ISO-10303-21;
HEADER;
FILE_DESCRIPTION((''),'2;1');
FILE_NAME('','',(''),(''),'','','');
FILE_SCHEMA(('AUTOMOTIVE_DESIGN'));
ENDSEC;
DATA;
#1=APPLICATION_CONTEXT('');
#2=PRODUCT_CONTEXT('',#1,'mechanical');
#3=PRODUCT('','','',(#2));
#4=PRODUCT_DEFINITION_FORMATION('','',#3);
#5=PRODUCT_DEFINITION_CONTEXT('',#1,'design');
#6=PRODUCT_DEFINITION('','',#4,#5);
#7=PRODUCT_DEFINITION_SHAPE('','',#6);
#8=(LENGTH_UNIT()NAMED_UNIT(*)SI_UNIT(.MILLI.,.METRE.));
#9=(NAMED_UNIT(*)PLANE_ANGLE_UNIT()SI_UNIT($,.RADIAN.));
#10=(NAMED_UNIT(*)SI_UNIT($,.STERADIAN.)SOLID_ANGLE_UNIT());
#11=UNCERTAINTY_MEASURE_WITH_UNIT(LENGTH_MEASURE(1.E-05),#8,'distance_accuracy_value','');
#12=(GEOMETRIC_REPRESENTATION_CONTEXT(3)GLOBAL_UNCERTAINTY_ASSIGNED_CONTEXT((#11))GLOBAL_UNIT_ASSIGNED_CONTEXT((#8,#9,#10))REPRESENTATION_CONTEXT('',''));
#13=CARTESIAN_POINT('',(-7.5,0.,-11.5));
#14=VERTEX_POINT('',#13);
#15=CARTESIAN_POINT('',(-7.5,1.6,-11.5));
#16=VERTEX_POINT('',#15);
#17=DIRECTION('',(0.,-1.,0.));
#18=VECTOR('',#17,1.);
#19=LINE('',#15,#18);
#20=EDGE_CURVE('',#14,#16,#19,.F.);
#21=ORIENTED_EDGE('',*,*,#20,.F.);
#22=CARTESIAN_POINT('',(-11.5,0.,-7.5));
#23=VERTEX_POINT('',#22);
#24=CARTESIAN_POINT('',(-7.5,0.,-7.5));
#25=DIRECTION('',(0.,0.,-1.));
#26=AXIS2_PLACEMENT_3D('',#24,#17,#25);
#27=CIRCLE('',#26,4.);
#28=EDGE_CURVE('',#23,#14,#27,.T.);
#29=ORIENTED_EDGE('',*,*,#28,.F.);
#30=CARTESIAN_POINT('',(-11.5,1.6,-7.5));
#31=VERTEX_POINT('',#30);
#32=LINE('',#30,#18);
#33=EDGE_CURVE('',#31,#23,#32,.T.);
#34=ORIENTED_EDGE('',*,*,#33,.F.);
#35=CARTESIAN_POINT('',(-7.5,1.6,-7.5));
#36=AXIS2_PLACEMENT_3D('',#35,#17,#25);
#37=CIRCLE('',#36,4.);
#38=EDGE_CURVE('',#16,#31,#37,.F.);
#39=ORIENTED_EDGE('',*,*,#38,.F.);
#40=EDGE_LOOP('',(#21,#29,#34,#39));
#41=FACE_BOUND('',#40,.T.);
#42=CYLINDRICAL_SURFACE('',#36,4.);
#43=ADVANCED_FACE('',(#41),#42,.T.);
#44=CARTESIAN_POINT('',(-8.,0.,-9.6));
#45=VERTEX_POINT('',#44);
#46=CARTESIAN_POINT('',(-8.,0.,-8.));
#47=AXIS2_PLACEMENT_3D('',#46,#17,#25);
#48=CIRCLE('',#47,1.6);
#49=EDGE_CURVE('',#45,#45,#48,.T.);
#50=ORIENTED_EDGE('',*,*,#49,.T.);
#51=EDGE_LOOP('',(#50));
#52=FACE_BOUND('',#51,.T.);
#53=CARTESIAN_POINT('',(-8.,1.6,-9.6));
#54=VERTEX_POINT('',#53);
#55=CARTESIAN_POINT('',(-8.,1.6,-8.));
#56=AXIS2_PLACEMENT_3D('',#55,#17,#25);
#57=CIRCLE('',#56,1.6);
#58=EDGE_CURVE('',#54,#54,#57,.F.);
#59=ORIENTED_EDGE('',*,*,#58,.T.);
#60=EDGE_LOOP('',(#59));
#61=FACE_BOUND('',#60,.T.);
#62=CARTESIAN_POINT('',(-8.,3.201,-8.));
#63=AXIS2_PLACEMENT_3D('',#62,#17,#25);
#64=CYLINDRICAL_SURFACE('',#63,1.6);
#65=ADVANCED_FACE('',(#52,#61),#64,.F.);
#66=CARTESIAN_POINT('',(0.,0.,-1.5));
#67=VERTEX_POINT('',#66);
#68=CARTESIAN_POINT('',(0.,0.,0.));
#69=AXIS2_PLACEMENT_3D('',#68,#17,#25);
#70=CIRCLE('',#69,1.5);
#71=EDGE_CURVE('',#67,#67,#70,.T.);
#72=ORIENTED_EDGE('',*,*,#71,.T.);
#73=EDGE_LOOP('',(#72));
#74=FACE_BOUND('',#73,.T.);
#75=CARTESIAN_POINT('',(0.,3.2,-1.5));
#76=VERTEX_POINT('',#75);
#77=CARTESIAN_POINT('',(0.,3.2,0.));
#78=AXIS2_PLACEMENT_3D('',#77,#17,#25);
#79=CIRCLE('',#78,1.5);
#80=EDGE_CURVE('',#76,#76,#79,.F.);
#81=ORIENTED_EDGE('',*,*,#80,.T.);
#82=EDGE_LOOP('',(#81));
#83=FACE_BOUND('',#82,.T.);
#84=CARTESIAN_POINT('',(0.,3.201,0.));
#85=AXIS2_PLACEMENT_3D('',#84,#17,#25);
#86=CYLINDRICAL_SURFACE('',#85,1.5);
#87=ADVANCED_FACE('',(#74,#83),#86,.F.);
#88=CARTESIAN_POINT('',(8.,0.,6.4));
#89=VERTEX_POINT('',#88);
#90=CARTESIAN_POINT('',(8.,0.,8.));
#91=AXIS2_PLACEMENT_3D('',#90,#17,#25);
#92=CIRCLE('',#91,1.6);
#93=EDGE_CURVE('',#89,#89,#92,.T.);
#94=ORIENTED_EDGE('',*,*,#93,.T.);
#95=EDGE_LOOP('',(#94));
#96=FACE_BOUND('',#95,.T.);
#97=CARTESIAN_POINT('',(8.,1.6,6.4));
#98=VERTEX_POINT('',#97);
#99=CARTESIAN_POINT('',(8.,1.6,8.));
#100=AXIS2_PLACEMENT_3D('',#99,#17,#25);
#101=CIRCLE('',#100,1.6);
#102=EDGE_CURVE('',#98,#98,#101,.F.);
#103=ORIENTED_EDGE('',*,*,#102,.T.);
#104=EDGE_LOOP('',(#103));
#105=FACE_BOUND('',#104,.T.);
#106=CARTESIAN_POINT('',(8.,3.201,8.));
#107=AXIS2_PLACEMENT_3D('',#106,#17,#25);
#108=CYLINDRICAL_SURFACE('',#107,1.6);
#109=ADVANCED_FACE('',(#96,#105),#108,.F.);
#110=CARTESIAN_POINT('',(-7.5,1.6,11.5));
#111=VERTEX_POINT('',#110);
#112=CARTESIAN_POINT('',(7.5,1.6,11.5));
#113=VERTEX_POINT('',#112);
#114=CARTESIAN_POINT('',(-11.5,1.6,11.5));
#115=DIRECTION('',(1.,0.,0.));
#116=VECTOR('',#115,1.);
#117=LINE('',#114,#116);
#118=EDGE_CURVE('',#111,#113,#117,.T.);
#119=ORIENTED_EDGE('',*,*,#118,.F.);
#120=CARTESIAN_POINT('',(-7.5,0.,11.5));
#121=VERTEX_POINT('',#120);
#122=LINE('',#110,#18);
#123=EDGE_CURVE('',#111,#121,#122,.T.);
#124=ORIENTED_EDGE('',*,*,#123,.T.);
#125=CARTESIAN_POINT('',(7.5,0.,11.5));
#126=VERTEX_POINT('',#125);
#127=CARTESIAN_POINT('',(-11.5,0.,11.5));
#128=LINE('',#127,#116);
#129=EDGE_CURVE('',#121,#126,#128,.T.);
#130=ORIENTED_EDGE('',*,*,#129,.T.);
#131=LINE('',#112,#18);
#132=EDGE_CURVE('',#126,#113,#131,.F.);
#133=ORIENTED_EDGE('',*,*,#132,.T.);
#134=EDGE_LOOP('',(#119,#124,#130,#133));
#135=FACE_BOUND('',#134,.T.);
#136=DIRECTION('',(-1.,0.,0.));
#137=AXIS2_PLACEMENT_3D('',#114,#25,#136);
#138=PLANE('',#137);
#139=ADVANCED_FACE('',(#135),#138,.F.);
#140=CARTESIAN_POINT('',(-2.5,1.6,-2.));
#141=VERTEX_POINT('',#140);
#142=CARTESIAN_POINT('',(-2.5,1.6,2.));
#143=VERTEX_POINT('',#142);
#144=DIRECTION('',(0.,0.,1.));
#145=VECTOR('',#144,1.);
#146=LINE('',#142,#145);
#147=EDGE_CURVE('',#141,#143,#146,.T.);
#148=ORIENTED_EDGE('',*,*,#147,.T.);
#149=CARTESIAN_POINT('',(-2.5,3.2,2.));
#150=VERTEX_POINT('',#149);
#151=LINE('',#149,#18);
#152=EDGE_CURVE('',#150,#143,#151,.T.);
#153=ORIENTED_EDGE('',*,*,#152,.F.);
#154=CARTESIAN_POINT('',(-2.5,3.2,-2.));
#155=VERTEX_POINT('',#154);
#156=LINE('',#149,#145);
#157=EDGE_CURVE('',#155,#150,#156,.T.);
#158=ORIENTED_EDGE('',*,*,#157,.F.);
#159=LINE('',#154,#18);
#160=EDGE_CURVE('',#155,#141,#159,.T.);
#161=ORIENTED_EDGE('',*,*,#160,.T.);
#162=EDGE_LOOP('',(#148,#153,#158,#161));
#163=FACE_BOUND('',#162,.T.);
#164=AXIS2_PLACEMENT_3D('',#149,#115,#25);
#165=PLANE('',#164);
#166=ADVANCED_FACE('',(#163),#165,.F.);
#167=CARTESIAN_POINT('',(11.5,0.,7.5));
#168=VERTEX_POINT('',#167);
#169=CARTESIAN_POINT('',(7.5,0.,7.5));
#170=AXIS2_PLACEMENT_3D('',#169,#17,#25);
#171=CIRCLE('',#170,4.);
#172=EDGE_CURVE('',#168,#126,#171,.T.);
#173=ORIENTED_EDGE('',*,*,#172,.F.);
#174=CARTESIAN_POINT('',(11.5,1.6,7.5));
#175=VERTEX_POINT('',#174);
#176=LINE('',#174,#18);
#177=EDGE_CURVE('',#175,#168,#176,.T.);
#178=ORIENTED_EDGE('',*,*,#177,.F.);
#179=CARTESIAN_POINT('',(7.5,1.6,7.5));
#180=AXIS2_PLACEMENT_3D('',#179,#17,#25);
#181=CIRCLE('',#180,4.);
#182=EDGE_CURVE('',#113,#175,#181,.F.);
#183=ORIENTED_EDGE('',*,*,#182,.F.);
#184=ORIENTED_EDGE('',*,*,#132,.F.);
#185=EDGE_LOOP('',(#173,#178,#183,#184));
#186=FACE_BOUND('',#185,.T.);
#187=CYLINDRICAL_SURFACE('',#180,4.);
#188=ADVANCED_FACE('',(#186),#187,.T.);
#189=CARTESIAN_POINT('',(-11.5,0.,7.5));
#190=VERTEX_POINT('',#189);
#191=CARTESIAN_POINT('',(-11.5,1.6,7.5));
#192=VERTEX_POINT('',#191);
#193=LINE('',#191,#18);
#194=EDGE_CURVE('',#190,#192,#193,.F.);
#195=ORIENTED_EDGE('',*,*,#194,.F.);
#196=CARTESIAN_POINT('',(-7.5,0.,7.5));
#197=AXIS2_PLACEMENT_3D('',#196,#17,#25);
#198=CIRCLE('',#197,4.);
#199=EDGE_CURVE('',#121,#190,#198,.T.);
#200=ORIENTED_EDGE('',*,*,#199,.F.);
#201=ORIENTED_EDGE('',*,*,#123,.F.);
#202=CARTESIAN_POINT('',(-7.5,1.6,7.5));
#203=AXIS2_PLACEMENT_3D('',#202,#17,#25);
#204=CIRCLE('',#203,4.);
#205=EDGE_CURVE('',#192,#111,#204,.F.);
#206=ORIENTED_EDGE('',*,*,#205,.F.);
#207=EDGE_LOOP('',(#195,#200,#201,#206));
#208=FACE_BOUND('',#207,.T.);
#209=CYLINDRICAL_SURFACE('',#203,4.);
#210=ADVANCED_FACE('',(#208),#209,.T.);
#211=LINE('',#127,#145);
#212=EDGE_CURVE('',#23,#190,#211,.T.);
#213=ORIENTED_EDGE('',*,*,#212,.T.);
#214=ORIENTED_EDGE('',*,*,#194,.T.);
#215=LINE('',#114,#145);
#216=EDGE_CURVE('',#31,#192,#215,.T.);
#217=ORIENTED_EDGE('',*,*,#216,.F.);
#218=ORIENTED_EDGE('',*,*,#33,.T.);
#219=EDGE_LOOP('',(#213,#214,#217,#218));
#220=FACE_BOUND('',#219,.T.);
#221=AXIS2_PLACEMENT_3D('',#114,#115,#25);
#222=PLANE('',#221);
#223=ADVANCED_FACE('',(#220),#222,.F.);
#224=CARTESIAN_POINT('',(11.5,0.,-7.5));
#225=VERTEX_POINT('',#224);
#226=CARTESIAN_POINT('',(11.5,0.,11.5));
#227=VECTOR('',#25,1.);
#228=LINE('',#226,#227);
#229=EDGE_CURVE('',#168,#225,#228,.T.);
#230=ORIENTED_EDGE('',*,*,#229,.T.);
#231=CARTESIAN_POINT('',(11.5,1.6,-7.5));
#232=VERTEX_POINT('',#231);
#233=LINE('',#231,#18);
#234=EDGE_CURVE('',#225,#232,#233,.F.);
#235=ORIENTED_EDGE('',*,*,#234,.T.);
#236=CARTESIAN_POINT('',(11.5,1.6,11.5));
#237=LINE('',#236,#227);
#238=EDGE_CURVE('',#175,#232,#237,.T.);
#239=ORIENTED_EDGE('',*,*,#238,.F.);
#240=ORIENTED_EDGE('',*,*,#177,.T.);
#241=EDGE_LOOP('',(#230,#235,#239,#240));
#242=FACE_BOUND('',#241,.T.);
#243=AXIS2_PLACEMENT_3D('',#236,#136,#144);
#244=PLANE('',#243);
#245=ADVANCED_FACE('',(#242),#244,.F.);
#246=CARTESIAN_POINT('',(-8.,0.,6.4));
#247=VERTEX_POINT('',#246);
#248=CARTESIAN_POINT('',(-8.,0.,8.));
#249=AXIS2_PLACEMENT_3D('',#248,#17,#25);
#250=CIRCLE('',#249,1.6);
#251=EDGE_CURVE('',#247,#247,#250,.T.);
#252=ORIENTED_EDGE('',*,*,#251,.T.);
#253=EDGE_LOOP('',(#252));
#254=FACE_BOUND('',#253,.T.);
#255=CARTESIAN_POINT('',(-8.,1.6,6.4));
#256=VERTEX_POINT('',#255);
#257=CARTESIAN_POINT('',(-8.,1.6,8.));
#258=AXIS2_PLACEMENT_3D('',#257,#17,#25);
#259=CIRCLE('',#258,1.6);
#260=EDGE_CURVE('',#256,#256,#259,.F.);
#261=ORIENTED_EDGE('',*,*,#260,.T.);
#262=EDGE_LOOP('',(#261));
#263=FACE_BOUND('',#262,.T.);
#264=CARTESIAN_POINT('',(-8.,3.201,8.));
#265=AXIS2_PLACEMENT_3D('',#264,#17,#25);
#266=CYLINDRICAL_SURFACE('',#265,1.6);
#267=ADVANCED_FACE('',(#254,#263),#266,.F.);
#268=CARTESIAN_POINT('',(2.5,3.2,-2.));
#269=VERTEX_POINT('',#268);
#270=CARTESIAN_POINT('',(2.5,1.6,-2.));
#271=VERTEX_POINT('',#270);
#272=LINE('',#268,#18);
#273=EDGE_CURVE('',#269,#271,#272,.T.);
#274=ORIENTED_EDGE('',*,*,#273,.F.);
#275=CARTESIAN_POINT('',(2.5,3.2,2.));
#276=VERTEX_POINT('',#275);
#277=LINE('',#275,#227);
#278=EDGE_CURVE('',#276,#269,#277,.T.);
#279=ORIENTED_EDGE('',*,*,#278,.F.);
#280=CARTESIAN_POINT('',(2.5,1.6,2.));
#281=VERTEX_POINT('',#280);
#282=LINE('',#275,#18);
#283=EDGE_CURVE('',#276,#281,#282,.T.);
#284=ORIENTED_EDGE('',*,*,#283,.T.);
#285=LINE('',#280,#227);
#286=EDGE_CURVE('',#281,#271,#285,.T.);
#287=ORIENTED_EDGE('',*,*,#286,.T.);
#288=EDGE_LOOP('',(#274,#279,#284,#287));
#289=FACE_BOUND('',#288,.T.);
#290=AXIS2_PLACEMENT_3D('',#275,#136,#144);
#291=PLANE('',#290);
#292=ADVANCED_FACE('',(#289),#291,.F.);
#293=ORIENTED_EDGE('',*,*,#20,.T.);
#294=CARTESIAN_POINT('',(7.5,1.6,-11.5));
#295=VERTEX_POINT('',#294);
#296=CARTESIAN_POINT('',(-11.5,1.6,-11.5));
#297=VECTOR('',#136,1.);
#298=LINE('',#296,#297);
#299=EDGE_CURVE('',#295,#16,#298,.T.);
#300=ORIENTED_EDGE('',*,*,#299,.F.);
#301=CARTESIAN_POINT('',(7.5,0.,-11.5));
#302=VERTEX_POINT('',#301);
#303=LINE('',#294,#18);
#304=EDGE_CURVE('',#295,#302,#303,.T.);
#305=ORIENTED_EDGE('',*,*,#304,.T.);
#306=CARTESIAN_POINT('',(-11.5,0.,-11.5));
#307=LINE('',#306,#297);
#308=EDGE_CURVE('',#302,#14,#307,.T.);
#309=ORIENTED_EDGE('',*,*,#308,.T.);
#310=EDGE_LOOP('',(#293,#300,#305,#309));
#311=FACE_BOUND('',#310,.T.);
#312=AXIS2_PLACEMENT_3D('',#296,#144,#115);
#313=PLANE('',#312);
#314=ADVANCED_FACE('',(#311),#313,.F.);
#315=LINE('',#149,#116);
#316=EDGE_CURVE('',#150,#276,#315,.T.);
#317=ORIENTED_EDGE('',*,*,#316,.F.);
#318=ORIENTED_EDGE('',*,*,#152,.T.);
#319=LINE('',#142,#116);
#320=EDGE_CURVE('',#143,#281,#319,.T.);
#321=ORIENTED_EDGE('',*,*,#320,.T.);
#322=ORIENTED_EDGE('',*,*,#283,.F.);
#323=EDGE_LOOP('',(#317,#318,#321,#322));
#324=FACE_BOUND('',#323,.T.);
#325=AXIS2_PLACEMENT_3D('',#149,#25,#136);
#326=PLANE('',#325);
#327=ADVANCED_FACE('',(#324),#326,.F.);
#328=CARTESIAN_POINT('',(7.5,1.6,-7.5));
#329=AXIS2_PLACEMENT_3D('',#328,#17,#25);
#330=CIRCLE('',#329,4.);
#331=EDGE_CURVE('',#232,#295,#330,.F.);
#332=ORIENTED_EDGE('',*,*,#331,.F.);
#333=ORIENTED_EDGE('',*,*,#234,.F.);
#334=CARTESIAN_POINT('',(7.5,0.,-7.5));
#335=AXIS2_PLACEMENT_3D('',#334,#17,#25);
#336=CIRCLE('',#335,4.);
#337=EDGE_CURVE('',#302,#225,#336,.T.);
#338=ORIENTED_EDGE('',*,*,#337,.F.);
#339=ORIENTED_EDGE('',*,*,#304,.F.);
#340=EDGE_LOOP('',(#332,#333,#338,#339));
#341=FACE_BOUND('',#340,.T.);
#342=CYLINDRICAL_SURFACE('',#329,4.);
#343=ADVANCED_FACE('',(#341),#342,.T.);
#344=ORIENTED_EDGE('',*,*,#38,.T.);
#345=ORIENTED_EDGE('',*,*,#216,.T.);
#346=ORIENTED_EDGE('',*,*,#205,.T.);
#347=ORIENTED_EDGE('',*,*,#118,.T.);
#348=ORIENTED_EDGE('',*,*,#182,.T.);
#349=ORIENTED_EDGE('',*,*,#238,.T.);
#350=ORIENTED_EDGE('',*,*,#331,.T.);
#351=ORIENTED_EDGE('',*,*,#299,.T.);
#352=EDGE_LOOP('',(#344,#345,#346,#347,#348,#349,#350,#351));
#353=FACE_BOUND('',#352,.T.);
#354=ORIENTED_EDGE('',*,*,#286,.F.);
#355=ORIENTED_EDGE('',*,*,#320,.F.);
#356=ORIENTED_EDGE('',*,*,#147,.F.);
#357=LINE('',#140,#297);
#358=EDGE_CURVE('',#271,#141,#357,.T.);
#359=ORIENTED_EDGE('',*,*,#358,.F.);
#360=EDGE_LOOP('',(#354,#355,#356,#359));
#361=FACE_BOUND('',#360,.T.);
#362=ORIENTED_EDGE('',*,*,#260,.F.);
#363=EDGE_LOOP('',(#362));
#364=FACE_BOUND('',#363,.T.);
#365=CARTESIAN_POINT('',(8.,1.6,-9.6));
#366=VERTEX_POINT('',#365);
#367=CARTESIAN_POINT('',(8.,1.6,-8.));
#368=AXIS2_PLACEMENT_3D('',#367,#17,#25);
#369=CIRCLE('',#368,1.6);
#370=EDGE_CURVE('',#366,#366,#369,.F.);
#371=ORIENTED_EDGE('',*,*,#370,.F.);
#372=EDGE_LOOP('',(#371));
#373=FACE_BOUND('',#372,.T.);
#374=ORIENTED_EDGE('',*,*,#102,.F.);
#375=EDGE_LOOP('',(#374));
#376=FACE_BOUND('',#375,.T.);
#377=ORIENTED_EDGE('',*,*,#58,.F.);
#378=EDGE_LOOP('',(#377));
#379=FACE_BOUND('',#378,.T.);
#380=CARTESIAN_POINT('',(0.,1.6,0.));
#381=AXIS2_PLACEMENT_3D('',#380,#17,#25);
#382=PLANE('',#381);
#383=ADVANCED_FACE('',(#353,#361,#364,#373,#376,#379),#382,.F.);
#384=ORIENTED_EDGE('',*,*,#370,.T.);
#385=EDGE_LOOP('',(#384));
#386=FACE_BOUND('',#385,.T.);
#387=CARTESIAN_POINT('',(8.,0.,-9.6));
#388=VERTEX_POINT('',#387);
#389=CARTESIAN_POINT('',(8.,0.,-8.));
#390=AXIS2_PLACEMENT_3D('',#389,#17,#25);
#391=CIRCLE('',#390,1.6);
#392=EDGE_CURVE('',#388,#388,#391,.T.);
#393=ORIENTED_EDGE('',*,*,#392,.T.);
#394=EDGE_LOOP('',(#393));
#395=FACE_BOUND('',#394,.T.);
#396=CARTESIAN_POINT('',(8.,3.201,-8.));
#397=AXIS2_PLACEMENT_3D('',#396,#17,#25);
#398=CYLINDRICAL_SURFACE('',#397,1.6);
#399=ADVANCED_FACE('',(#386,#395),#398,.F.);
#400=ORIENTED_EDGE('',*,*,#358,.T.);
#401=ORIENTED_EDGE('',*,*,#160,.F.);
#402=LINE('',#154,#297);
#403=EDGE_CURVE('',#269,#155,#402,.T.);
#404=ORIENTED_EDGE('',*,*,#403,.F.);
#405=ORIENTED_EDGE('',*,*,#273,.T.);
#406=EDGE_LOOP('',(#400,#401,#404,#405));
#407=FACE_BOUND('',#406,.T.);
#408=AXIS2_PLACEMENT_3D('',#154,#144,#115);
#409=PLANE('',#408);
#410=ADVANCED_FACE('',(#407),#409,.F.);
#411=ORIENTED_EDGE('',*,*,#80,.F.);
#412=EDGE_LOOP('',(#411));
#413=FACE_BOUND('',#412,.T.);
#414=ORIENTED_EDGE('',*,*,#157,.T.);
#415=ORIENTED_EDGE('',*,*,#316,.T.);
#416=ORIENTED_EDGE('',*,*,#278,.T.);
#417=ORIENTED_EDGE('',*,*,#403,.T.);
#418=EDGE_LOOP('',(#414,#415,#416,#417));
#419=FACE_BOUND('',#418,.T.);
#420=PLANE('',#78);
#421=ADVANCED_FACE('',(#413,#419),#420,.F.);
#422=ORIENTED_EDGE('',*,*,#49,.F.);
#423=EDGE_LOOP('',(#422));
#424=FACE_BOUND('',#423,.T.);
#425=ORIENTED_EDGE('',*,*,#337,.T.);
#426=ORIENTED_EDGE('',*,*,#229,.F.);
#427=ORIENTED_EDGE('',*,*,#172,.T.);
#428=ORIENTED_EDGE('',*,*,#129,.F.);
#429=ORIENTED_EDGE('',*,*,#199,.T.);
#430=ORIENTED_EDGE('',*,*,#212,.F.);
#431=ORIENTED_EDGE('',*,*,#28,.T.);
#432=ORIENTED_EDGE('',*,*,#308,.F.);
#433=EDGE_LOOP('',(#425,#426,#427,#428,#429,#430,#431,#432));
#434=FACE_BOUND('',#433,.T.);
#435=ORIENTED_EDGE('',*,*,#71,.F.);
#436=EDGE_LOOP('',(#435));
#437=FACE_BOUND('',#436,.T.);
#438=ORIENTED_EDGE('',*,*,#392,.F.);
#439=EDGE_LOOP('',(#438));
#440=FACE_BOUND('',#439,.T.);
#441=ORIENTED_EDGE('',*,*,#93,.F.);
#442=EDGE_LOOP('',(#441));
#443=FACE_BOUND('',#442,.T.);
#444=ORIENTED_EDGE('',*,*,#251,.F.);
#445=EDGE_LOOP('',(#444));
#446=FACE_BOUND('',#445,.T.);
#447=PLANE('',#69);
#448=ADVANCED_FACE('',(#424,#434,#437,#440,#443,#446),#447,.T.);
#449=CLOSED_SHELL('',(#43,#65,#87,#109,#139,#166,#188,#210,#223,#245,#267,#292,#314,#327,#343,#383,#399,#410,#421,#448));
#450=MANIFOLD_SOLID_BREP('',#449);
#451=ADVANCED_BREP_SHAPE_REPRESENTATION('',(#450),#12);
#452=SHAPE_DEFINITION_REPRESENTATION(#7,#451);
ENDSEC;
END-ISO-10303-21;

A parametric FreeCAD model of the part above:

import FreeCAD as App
import Part
import Sketcher
from FreeCAD import Vector


def edges_at(feature, points):
    """Names of the edges that pass closest to the given points."""
    edges = feature.Shape.Edges
    near = lambda p: min(range(len(edges)), key=lambda i: edges[i].distToShape(Part.Vertex(*p))[0])
    return sorted({f"Edge{near(p) + 1}" for p in points})


def add_polygon(sketch, points):
    """Adds a closed chain of lines whose ends are joined by coincident constraints."""
    first, n = sketch.GeometryCount, len(points)
    for a, b in zip(points, points[1:] + points[:1]):
        sketch.addGeometry(Part.LineSegment(App.Vector(*a, 0), App.Vector(*b, 0)), False)
    for i in range(n):
        sketch.addConstraint(Sketcher.Constraint("Coincident", first + i, 2, first + (i + 1) % n, 1))

doc = App.newDocument("Part")
body = doc.addObject("PartDesign::Body", "Body")

# Sketch on XZ plane
sketch1 = doc.addObject("Sketcher::SketchObject", "Sketch")
body.addObject(sketch1)
sketch1.AttachmentSupport = (doc.XZ_Plane, [""])
sketch1.MapMode = "FlatFace"
add_polygon(sketch1, [(-12, -12), (-12, 12), (12, 12), (12, -12)])  # lines 0-3
sketch1.addConstraint(Sketcher.Constraint("Vertical", 0))
sketch1.addConstraint(Sketcher.Constraint("Horizontal", 1))
sketch1.addConstraint(Sketcher.Constraint("Vertical", 2))
sketch1.addConstraint(Sketcher.Constraint("Horizontal", 3))
sketch1.addConstraint(Sketcher.Constraint("Symmetric", 0, 2, 2, 2, -1, 1))
sketch1.addConstraint(Sketcher.Constraint("Equal", 3, 0))
sketch1.addConstraint(Sketcher.Constraint("DistanceX", 1, 1, 1, 2, 23.0))
pad1 = doc.addObject("PartDesign::Pad", "Pad")
body.addObject(pad1)
pad1.Profile = sketch1
pad1.Length = 1.6
pad1.Reversed = True

# Sketch on XZ plane
sketch2 = doc.addObject("Sketcher::SketchObject", "Sketch001")
body.addObject(sketch2)
sketch2.AttachmentSupport = (doc.XZ_Plane, [""])
sketch2.MapMode = "FlatFace"
sketch2.AttachmentOffset = App.Placement(Vector(0, 0, -1.6), App.Rotation())
add_polygon(sketch2, [(-2.5, -2), (-2.5, 2), (2.5, 2), (2.5, -2)])  # lines 0-3
sketch2.addConstraint(Sketcher.Constraint("Vertical", 0))
sketch2.addConstraint(Sketcher.Constraint("Horizontal", 1))
sketch2.addConstraint(Sketcher.Constraint("Vertical", 2))
sketch2.addConstraint(Sketcher.Constraint("Horizontal", 3))
sketch2.addConstraint(Sketcher.Constraint("Symmetric", 0, 2, 2, 2, -1, 1))
sketch2.addConstraint(Sketcher.Constraint("DistanceX", 1, 1, 1, 2, 5.0))
sketch2.addConstraint(Sketcher.Constraint("DistanceY", 0, 1, 0, 2, 4.0))
pad2 = doc.addObject("PartDesign::Pad", "Pad001")
body.addObject(pad2)
pad2.Profile = sketch2
pad2.Length = 1.6
pad2.Reversed = True
doc.recompute()

fillet = doc.addObject("PartDesign::Fillet", "Fillet")
body.addObject(fillet)
fillet.Base = (pad2, edges_at(pad2, [
    (11.5, 0.8, 11.5),
    (-11.5, 0.8, 11.5),
    (-11.5, 0.8, -11.5),
    (11.5, 0.8, -11.5),
]))
fillet.Radius = 4

# Sketch on XZ plane
sketch3 = doc.addObject("Sketcher::SketchObject", "Sketch002")
body.addObject(sketch3)
sketch3.AttachmentSupport = (doc.XZ_Plane, [""])
sketch3.MapMode = "FlatFace"
sketch3.addGeometry(Part.Circle(Vector(-8, 8, 0), Vector(0, 0, 1), 1.6), False)
sketch3.addConstraint(Sketcher.Constraint("Diameter", 0, 3.2))
sketch3.addConstraint(Sketcher.Constraint("DistanceX", 0, 3, -1, 1, 8.0))
sketch3.addConstraint(Sketcher.Constraint("DistanceY", -1, 1, 0, 3, 8.0))
pocket1 = doc.addObject("PartDesign::Pocket", "Pocket")
body.addObject(pocket1)
pocket1.Profile = sketch3
pocket1.Type = "UpToFirst"

# Sketch on XZ plane
sketch4 = doc.addObject("Sketcher::SketchObject", "Sketch003")
body.addObject(sketch4)
sketch4.AttachmentSupport = (doc.XZ_Plane, [""])
sketch4.MapMode = "FlatFace"
sketch4.addGeometry(Part.Circle(Vector(8, 8, 0), Vector(0, 0, 1), 1.6), False)
sketch4.addConstraint(Sketcher.Constraint("Diameter", 0, 3.2))
sketch4.addConstraint(Sketcher.Constraint("DistanceX", -1, 1, 0, 3, 8.0))
sketch4.addConstraint(Sketcher.Constraint("DistanceY", -1, 1, 0, 3, 8.0))
pocket2 = doc.addObject("PartDesign::Pocket", "Pocket001")
body.addObject(pocket2)
pocket2.Profile = sketch4
pocket2.Type = "UpToFirst"

# Sketch on XZ plane
sketch5 = doc.addObject("Sketcher::SketchObject", "Sketch004")
body.addObject(sketch5)
sketch5.AttachmentSupport = (doc.XZ_Plane, [""])
sketch5.MapMode = "FlatFace"
sketch5.addGeometry(Part.Circle(Vector(8, -8, 0), Vector(0, 0, 1), 1.6), False)
sketch5.addConstraint(Sketcher.Constraint("Diameter", 0, 3.2))
sketch5.addConstraint(Sketcher.Constraint("DistanceX", -1, 1, 0, 3, 8.0))
sketch5.addConstraint(Sketcher.Constraint("DistanceY", 0, 3, -1, 1, 8.0))
pocket3 = doc.addObject("PartDesign::Pocket", "Pocket002")
body.addObject(pocket3)
pocket3.Profile = sketch5
pocket3.Type = "UpToFirst"

# Sketch on XZ plane
sketch6 = doc.addObject("Sketcher::SketchObject", "Sketch005")
body.addObject(sketch6)
sketch6.AttachmentSupport = (doc.XZ_Plane, [""])
sketch6.MapMode = "FlatFace"
sketch6.addGeometry(Part.Circle(Vector(-8, -8, 0), Vector(0, 0, 1), 1.6), False)
sketch6.addConstraint(Sketcher.Constraint("Diameter", 0, 3.2))
sketch6.addConstraint(Sketcher.Constraint("DistanceX", 0, 3, -1, 1, 8.0))
sketch6.addConstraint(Sketcher.Constraint("DistanceY", 0, 3, -1, 1, 8.0))
pocket4 = doc.addObject("PartDesign::Pocket", "Pocket003")
body.addObject(pocket4)
pocket4.Profile = sketch6
pocket4.Type = "UpToFirst"

# Sketch on XZ plane
sketch7 = doc.addObject("Sketcher::SketchObject", "Sketch006")
body.addObject(sketch7)
sketch7.AttachmentSupport = (doc.XZ_Plane, [""])
sketch7.MapMode = "FlatFace"
sketch7.addGeometry(Part.Circle(Vector(0, 0, 0), Vector(0, 0, 1), 1.5), False)
sketch7.addConstraint(Sketcher.Constraint("Coincident", 0, 3, -1, 1))
sketch7.addConstraint(Sketcher.Constraint("Diameter", 0, 3.0))
pocket5 = doc.addObject("PartDesign::Pocket", "Pocket004")
body.addObject(pocket5)
pocket5.Profile = sketch7
pocket5.Type = "UpToFirst"

doc.recompute()
